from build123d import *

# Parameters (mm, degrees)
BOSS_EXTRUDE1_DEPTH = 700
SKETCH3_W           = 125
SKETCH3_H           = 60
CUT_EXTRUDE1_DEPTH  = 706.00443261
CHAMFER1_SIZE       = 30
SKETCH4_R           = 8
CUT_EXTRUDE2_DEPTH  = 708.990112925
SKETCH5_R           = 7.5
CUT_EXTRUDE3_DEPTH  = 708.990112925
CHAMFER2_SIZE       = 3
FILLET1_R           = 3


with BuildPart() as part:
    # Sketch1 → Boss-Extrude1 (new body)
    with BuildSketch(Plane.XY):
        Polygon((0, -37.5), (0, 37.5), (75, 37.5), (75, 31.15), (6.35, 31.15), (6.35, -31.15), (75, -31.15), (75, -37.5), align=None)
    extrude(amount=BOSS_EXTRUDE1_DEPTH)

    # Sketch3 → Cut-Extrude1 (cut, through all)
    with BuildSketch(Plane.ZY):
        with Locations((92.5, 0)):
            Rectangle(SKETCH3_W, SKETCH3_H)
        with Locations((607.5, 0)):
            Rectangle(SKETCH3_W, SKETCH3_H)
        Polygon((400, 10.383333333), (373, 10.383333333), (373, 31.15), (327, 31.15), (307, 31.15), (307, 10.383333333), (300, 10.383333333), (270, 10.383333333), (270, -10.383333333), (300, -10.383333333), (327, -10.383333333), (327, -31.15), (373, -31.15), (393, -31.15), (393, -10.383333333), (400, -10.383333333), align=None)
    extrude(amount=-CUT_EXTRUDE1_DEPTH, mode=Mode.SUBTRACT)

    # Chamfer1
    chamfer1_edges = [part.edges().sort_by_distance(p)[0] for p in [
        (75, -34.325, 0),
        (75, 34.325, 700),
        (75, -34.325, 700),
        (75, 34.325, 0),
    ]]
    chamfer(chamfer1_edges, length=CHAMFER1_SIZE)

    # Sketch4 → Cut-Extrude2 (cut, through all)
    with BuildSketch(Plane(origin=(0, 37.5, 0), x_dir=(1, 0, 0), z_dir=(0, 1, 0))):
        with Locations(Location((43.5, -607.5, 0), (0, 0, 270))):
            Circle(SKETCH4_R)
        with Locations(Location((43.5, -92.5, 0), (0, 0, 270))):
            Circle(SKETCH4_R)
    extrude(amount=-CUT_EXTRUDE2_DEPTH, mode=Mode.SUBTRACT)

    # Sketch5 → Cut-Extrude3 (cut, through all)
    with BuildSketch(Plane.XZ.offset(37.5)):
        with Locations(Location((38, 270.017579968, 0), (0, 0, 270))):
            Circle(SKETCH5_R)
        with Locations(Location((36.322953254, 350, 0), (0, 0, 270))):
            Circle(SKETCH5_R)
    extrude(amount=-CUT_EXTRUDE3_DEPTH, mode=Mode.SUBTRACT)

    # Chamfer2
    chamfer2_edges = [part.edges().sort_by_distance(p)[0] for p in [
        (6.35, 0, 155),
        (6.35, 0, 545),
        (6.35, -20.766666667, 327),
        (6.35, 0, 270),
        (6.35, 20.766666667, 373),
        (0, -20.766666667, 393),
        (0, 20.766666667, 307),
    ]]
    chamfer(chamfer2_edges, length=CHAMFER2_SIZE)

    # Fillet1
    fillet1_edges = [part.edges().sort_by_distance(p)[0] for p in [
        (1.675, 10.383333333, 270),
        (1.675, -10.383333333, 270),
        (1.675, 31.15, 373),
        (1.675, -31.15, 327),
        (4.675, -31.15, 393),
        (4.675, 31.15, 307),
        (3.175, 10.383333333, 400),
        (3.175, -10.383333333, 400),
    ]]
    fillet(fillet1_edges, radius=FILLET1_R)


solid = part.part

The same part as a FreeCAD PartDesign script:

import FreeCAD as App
import Part
import Sketcher

V = App.Vector
Q = App.Units.Quantity


def edges_at(feature, points):
    """Names of the edges that pass closest to the given points."""
    edges = feature.Shape.Edges
    near = lambda p: min(range(len(edges)), key=lambda i: edges[i].distToShape(Part.Vertex(*p))[0])
    return sorted({f"Edge{near(p) + 1}" for p in points})

doc = App.newDocument("Part")
body = doc.addObject("PartDesign::Body", "Body")

sketch1 = doc.addObject("Sketcher::SketchObject", "Sketch")
body.addObject(sketch1)
sketch1.AttachmentSupport = (doc.XY_Plane, [""])
sketch1.MapMode = "FlatFace"
sketch1.addGeometry(Part.LineSegment(V(0, 38, 0), V(0, -38, 0)), False)
sketch1.addGeometry(Part.LineSegment(V(0, -38, 0), V(75, -38, 0)), False)
sketch1.addGeometry(Part.LineSegment(V(75, -38, 0), V(75, -31, 0)), False)
sketch1.addGeometry(Part.LineSegment(V(75, -31, 0), V(6, -31, 0)), False)
sketch1.addGeometry(Part.LineSegment(V(6, -31, 0), V(6, 31, 0)), False)
sketch1.addGeometry(Part.LineSegment(V(6, 31, 0), V(75, 31, 0)), False)
sketch1.addGeometry(Part.LineSegment(V(75, 31, 0), V(75, 38, 0)), False)
sketch1.addGeometry(Part.LineSegment(V(75, 38, 0), V(0, 38, 0)), False)
sketch1.addConstraint(Sketcher.Constraint("Coincident", 0, 2, 1, 1))
sketch1.addConstraint(Sketcher.Constraint("Coincident", 1, 2, 2, 1))
sketch1.addConstraint(Sketcher.Constraint("Coincident", 2, 2, 3, 1))
sketch1.addConstraint(Sketcher.Constraint("Coincident", 3, 2, 4, 1))
sketch1.addConstraint(Sketcher.Constraint("Coincident", 4, 2, 5, 1))
sketch1.addConstraint(Sketcher.Constraint("Coincident", 5, 2, 6, 1))
sketch1.addConstraint(Sketcher.Constraint("Coincident", 6, 2, 7, 1))
sketch1.addConstraint(Sketcher.Constraint("Coincident", 7, 2, 0, 1))
sketch1.addConstraint(Sketcher.Constraint("Vertical", 0))
sketch1.addConstraint(Sketcher.Constraint("Horizontal", 1))
sketch1.addConstraint(Sketcher.Constraint("Vertical", 2))
sketch1.addConstraint(Sketcher.Constraint("Horizontal", 3))
sketch1.addConstraint(Sketcher.Constraint("Vertical", 4))
sketch1.addConstraint(Sketcher.Constraint("Horizontal", 5))
sketch1.addConstraint(Sketcher.Constraint("Vertical", 6))
sketch1.addConstraint(Sketcher.Constraint("Horizontal", 7))
sketch1.addConstraint(Sketcher.Constraint("Symmetric", 0, 2, 7, 2, -1, 1))
sketch1.addConstraint(Sketcher.Constraint("Symmetric", 2, 2, 5, 2, -1))
sketch1.addConstraint(Sketcher.Constraint("Equal", 7, 0))
sketch1.addConstraint(Sketcher.Constraint("DistanceX", 1, 1, 1, 2, Q("75 mm")))
sketch1.addConstraint(Sketcher.Constraint("DistanceY", 4, 1, 4, 2, Q("62.3 mm")))
sketch1.addConstraint(Sketcher.Constraint("DistanceX", 3, 2, 3, 1, Q("68.65 mm")))
pad1 = doc.addObject("PartDesign::Pad", "Pad")
body.addObject(pad1)
pad1.Profile = sketch1
pad1.Length = 700

sketch2 = doc.addObject("Sketcher::SketchObject", "Sketch001")
body.addObject(sketch2)
sketch2.AttachmentSupport = (doc.YZ_Plane, [""])
sketch2.MapMode = "FlatFace"
sketch2.addGeometry(Part.LineSegment(V(30, 30, 0), V(-30, 30, 0)), False)
sketch2.addGeometry(Part.LineSegment(V(-30, 30, 0), V(-30, 155, 0)), False)
sketch2.addGeometry(Part.LineSegment(V(-30, 155, 0), V(30, 155, 0)), False)
sketch2.addGeometry(Part.LineSegment(V(30, 155, 0), V(30, 30, 0)), False)
sketch2.addGeometry(Part.LineSegment(V(30, 545, 0), V(-30, 545, 0)), False)
sketch2.addGeometry(Part.LineSegment(V(-30, 545, 0), V(-30, 670, 0)), False)
sketch2.addGeometry(Part.LineSegment(V(-30, 670, 0), V(30, 670, 0)), False)
sketch2.addGeometry(Part.LineSegment(V(30, 670, 0), V(30, 545, 0)), False)
sketch2.addGeometry(Part.LineSegment(V(10, 400, 0), V(10, 373, 0)), False)
sketch2.addGeometry(Part.LineSegment(V(10, 373, 0), V(31, 373, 0)), False)
sketch2.addGeometry(Part.LineSegment(V(31, 373, 0), V(31, 307, 0)), False)
sketch2.addGeometry(Part.LineSegment(V(31, 307, 0), V(10, 307, 0)), False)
sketch2.addGeometry(Part.LineSegment(V(10, 307, 0), V(10, 270, 0)), False)
sketch2.addGeometry(Part.LineSegment(V(10, 270, 0), V(-10, 270, 0)), False)
sketch2.addGeometry(Part.LineSegment(V(-10, 270, 0), V(-10, 327, 0)), False)
sketch2.addGeometry(Part.LineSegment(V(-10, 327, 0), V(-31, 327, 0)), False)
sketch2.addGeometry(Part.LineSegment(V(-31, 327, 0), V(-31, 393, 0)), False)
sketch2.addGeometry(Part.LineSegment(V(-31, 393, 0), V(-10, 393, 0)), False)
sketch2.addGeometry(Part.LineSegment(V(-10, 393, 0), V(-10, 400, 0)), False)
sketch2.addGeometry(Part.LineSegment(V(-10, 400, 0), V(10, 400, 0)), False)
sketch2.addConstraint(Sketcher.Constraint("Coincident", 0, 2, 1, 1))
sketch2.addConstraint(Sketcher.Constraint("Coincident", 1, 2, 2, 1))
sketch2.addConstraint(Sketcher.Constraint("Coincident", 2, 2, 3, 1))
sketch2.addConstraint(Sketcher.Constraint("Coincident", 3, 2, 0, 1))
sketch2.addConstraint(Sketcher.Constraint("Coincident", 4, 2, 5, 1))
sketch2.addConstraint(Sketcher.Constraint("Coincident", 5, 2, 6, 1))
sketch2.addConstraint(Sketcher.Constraint("Coincident", 6, 2, 7, 1))
sketch2.addConstraint(Sketcher.Constraint("Coincident", 7, 2, 4, 1))
sketch2.addConstraint(Sketcher.Constraint("Coincident", 8, 2, 9, 1))
sketch2.addConstraint(Sketcher.Constraint("Coincident", 9, 2, 10, 1))
sketch2.addConstraint(Sketcher.Constraint("Coincident", 10, 2, 11, 1))
sketch2.addConstraint(Sketcher.Constraint("Coincident", 11, 2, 12, 1))
sketch2.addConstraint(Sketcher.Constraint("Coincident", 12, 2, 13, 1))
sketch2.addConstraint(Sketcher.Constraint("Coincident", 13, 2, 14, 1))
sketch2.addConstraint(Sketcher.Constraint("Coincident", 14, 2, 15, 1))
sketch2.addConstraint(Sketcher.Constraint("Coincident", 15, 2, 16, 1))
sketch2.addConstraint(Sketcher.Constraint("Coincident", 16, 2, 17, 1))
sketch2.addConstraint(Sketcher.Constraint("Coincident", 17, 2, 18, 1))
sketch2.addConstraint(Sketcher.Constraint("Coincident", 18, 2, 19, 1))
sketch2.addConstraint(Sketcher.Constraint("Coincident", 19, 2, 8, 1))
sketch2.addConstraint(Sketcher.Constraint("Horizontal", 0))
sketch2.addConstraint(Sketcher.Constraint("Vertical", 1))
sketch2.addConstraint(Sketcher.Constraint("Horizontal", 2))
sketch2.addConstraint(Sketcher.Constraint("Vertical", 3))
sketch2.addConstraint(Sketcher.Constraint("Horizontal", 4))
sketch2.addConstraint(Sketcher.Constraint("Vertical", 5))
sketch2.addConstraint(Sketcher.Constraint("Horizontal", 6))
sketch2.addConstraint(Sketcher.Constraint("Vertical", 7))
sketch2.addConstraint(Sketcher.Constraint("Vertical", 8))
sketch2.addConstraint(Sketcher.Constraint("Horizontal", 9))
sketch2.addConstraint(Sketcher.Constraint("Vertical", 10))
sketch2.addConstraint(Sketcher.Constraint("Horizontal", 11))
sketch2.addConstraint(Sketcher.Constraint("Vertical", 12))
sketch2.addConstraint(Sketcher.Constraint("Horizontal", 13))
sketch2.addConstraint(Sketcher.Constraint("Vertical", 14))
sketch2.addConstraint(Sketcher.Constraint("Horizontal", 15))
sketch2.addConstraint(Sketcher.Constraint("Vertical", 16))
sketch2.addConstraint(Sketcher.Constraint("Horizontal", 17))
sketch2.addConstraint(Sketcher.Constraint("Vertical", 18))
sketch2.addConstraint(Sketcher.Constraint("Horizontal", 19))
sketch2.addConstraint(Sketcher.Constraint("Vertical", 1, 2, 4, 2))
sketch2.addConstraint(Sketcher.Constraint("Vertical", 3, 2, 6, 2))
sketch2.addConstraint(Sketcher.Constraint("Vertical", 8, 2, 11, 2))
sketch2.addConstraint(Sketcher.Constraint("Vertical", 14, 2, 17, 2))
sketch2.addConstraint(Sketcher.Constraint("Equal", 11, 13))
sketch2.addConstraint(Sketcher.Constraint("Equal", 13, 15))
sketch2.addConstraint(Sketcher.Constraint("Equal", 3, 5))
sketch2.addConstraint(Sketcher.Constraint("Equal", 10, 16))
sketch2.addConstraint(Sketcher.Constraint("DistanceX", 0, 2, 0, 1, Q("60 mm")))
sketch2.addConstraint(Sketcher.Constraint("DistanceY", 1, 1, 1, 2, Q("125 mm")))
sketch2.addConstraint(Sketcher.Constraint("DistanceY", 8, 2, 8, 1, Q("27 mm")))
sketch2.addConstraint(Sketcher.Constraint("DistanceY", 10, 2, 10, 1, Q("66 mm")))
sketch2.addConstraint(Sketcher.Constraint("DistanceY", 12, 2, 12, 1, Q("37 mm")))
sketch2.addConstraint(Sketcher.Constraint("DistanceY", 14, 1, 14, 2, Q("57 mm")))
sketch2.addConstraint(Sketcher.Constraint("DistanceX", 0, 2, -1, 1, Q("30 mm")))
sketch2.addConstraint(Sketcher.Constraint("DistanceY", -1, 1, 0, 2, Q("30 mm")))
sketch2.addConstraint(Sketcher.Constraint("DistanceY", -1, 1, 4, 2, Q("545 mm")))
sketch2.addConstraint(Sketcher.Constraint("DistanceY", -1, 1, 8, 2, Q("373 mm")))
sketch2.addConstraint(Sketcher.Constraint("DistanceX", 15, 2, 10, 2, Q("62.3 mm")))
sketch2.addConstraint(Sketcher.Constraint("DistanceX", -1, 1, 9, 2, Q("31.15 mm")))
pocket1 = doc.addObject("PartDesign::Pocket", "Pocket")
body.addObject(pocket1)
pocket1.Profile = sketch2
pocket1.Type = "ThroughAll"
pocket1.Reversed = True
doc.recompute()

chamfer = doc.addObject("PartDesign::Chamfer", "Chamfer")
body.addObject(chamfer)
chamfer.Base = (pocket1, edges_at(pocket1, [
    (75, -34.325, 0),
    (75, 34.325, 700),
    (75, -34.325, 700),
    (75, 34.325, 0),
]))
chamfer.Size = 30

sketch3 = doc.addObject("Sketcher::SketchObject", "Sketch002")
body.addObject(sketch3)
sketch3.AttachmentSupport = (doc.XZ_Plane, [""])
sketch3.MapMode = "FlatFace"
sketch3.AttachmentOffset = App.Placement(V(0, 0, -37.5), App.Rotation())
sketch3.addGeometry(Part.Circle(V(44, 608, 0), V(0, 0, 1), 8), False)
sketch3.addGeometry(Part.Circle(V(44, 92, 0), V(0, 0, 1), 8), False)
sketch3.addConstraint(Sketcher.Constraint("Equal", 0, 1))
sketch3.addConstraint(Sketcher.Constraint("Vertical", 0, 3, 1, 3))
sketch3.addConstraint(Sketcher.Constraint("Diameter", 0, Q("16 mm")))
sketch3.addConstraint(Sketcher.Constraint("DistanceY", 1, 3, 0, 3, Q("515 mm")))
sketch3.addConstraint(Sketcher.Constraint("DistanceX", -1, 1, 0, 3, Q("43.5 mm")))
sketch3.addConstraint(Sketcher.Constraint("DistanceY", -1, 1, 0, 3, Q("607.5 mm")))
pocket2 = doc.addObject("PartDesign::Pocket", "Pocket001")
body.addObject(pocket2)
pocket2.Profile = sketch3
pocket2.Type = "ThroughAll"
pocket2.Reversed = True

sketch4 = doc.addObject("Sketcher::SketchObject", "Sketch003")
body.addObject(sketch4)
sketch4.AttachmentSupport = (doc.XZ_Plane, [""])
sketch4.MapMode = "FlatFace"
sketch4.AttachmentOffset = App.Placement(V(0, 0, 37.5), App.Rotation())
sketch4.addGeometry(Part.Circle(V(38, 270, 0), V(0, 0, 1), 8), False)
sketch4.addGeometry(Part.Circle(V(36, 350, 0), V(0, 0, 1), 8), False)
sketch4.addConstraint(Sketcher.Constraint("Equal", 0, 1))
sketch4.addConstraint(Sketcher.Constraint("Diameter", 0, Q("15 mm")))
sketch4.addConstraint(Sketcher.Constraint("DistanceX", -1, 1, 0, 3, Q("38 mm")))
sketch4.addConstraint(Sketcher.Constraint("DistanceY", -1, 1, 1, 3, Q("350 mm")))
sketch4.addConstraint(Sketcher.Constraint("DistanceY", -1, 1, 0, 3, Q("270.01758 mm")))
sketch4.addConstraint(Sketcher.Constraint("DistanceX", -1, 1, 1, 3, Q("36.322953 mm")))
pocket3 = doc.addObject("PartDesign::Pocket", "Pocket002")
body.addObject(pocket3)
pocket3.Profile = sketch4
pocket3.Type = "ThroughAll"
doc.recompute()

chamfer2 = doc.addObject("PartDesign::Chamfer", "Chamfer001")
body.addObject(chamfer2)
chamfer2.Base = (pocket3, edges_at(pocket3, [
    (6.35, 0, 155),
    (6.35, 0, 545),
    (6.35, -20.767, 327),
    (6.35, 0, 270),
    (6.35, 20.767, 373),
    (0, -20.767, 393),
    (0, 20.767, 307),
]))
chamfer2.Size = 3
doc.recompute()

fillet = doc.addObject("PartDesign::Fillet", "Fillet")
body.addObject(fillet)
fillet.Base = (chamfer2, edges_at(chamfer2, [
    (1.675, 10.383, 270),
    (1.675, -10.383, 270),
    (1.675, 31.15, 373),
    (1.675, -31.15, 327),
    (4.675, -31.15, 393),
    (4.675, 31.15, 307),
    (3.175, 10.383, 400),
    (3.175, -10.383, 400),
]))
fillet.Radius = 3

doc.recompute()
